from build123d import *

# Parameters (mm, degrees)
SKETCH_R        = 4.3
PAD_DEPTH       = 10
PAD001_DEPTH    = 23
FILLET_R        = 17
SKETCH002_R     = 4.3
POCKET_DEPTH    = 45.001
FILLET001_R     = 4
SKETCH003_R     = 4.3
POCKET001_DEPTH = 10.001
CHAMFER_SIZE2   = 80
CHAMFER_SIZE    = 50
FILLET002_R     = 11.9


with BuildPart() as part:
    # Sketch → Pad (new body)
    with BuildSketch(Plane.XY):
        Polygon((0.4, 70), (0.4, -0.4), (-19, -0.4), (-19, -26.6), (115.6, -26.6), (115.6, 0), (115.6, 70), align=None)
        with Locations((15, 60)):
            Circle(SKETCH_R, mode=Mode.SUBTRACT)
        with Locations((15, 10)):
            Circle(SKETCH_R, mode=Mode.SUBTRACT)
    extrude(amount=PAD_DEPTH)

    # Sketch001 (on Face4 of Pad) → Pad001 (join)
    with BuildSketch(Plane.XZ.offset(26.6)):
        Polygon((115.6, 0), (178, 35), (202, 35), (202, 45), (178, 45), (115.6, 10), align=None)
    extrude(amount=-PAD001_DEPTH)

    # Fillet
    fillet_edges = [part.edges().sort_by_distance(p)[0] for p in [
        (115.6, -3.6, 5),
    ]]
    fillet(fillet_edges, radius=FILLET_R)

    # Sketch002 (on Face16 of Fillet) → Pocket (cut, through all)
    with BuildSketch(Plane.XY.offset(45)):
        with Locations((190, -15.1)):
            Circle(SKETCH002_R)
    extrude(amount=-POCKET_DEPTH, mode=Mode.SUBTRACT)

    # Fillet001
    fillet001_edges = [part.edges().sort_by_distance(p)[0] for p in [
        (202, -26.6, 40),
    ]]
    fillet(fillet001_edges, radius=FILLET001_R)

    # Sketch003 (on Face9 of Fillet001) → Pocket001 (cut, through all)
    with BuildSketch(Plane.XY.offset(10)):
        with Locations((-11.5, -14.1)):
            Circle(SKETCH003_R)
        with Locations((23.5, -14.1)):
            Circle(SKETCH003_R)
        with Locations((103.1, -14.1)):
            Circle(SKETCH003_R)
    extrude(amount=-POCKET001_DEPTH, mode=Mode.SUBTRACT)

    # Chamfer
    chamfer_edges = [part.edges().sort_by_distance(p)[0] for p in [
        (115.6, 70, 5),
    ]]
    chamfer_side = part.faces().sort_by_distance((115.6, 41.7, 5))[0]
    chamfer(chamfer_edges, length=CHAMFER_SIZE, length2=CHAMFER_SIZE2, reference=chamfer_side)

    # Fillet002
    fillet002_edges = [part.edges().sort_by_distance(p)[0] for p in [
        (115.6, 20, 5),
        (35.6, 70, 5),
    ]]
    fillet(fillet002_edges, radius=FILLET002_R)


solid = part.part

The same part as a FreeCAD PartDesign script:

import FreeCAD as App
import Part
import Sketcher

V = App.Vector
Q = App.Units.Quantity


def edges_at(feature, points):
    """Names of the edges that pass closest to the given points."""
    edges = feature.Shape.Edges
    near = lambda p: min(range(len(edges)), key=lambda i: edges[i].distToShape(Part.Vertex(*p))[0])
    return sorted({f"Edge{near(p) + 1}" for p in points})

doc = App.newDocument("Part")
params = doc.addObject("Spreadsheet::Sheet", "Params")
for row, (alias, value) in enumerate([
    ("sketch1_diameter", "8.6 mm"),
    ("sketch1_width", "19.4 mm"),
    ("sketch1_width2", "134.6 mm"),
    ("sketch1_height", "70.4 mm"),
    ("sketch1_height2", "26.2 mm"),
    ("pad1_length", "10 mm"),
    ("sketch2_width", "24 mm"),
    ("sketch2_height", "10 mm"),
    ("pad2_length", "23 mm"),
    ("fillet_radius", "17 mm"),
    ("sketch3_diameter", "8.6 mm"),
    ("fillet2_radius", "4 mm"),
    ("sketch4_diameter", "8.6 mm"),
    ("chamfer_size", "50 mm"),
    ("chamfer_size2", "80 mm"),
    ("fillet3_radius", "11.9 mm"),
], start=1):
    params.set(f"A{row}", alias)
    params.set(f"B{row}", "=" + value)
    params.setAlias(f"B{row}", alias)

body = doc.addObject("PartDesign::Body", "Body")

sketch1 = body.newObject("Sketcher::SketchObject", "Sketch")
sketch1.AttachmentSupport = (doc.getObject("XY_Plane"), [""])
sketch1.MapMode = "FlatFace"
sketch1.addGeometry([
    Part.LineSegment(V(0.4, 70, 0), V(0.4, -0.4, 0)),
    Part.LineSegment(V(0.4, -0.4, 0), V(-19, -0.4, 0)),
    Part.LineSegment(V(-19, -0.4, 0), V(-19, -26.6, 0)),
    Part.LineSegment(V(-19, -26.6, 0), V(115.6, -26.6, 0)),
    Part.LineSegment(V(115.6, -26.6, 0), V(115.6, 70, 0)),
    Part.LineSegment(V(115.6, 70, 0), V(0.4, 70, 0)),
    Part.Circle(V(15, 10, 0), V(0, 0, 1), 4.3),
    Part.Circle(V(15, 60, 0), V(0, 0, 1), 4.3),
], False)
sketch1.addConstraint([
    Sketcher.Constraint("Coincident", 0, 2, 1, 1),
    Sketcher.Constraint("Coincident", 1, 2, 2, 1),
    Sketcher.Constraint("Coincident", 2, 2, 3, 1),
    Sketcher.Constraint("Coincident", 3, 2, 4, 1),
    Sketcher.Constraint("Coincident", 4, 2, 5, 1),
    Sketcher.Constraint("Coincident", 5, 2, 0, 1),
    Sketcher.Constraint("Vertical", 0),
    Sketcher.Constraint("Horizontal", 1),
    Sketcher.Constraint("Vertical", 2),
    Sketcher.Constraint("Horizontal", 3),
    Sketcher.Constraint("Vertical", 4),
    Sketcher.Constraint("Horizontal", 5),
    Sketcher.Constraint("Equal", 6, 7),
    Sketcher.Constraint("Vertical", 6, 3, 7, 3),
    Sketcher.Constraint("Diameter", 6, Q("8.6 mm")),
    Sketcher.Constraint("DistanceX", 1, 2, 1, 1, Q("19.4 mm")),
    Sketcher.Constraint("DistanceX", 3, 1, 3, 2, Q("134.6 mm")),
    Sketcher.Constraint("DistanceY", 0, 2, 0, 1, Q("70.4 mm")),
    Sketcher.Constraint("DistanceY", 2, 2, 2, 1, Q("26.2 mm")),
    Sketcher.Constraint("DistanceX", -1, 1, 6, 3, Q("15 mm")),
    Sketcher.Constraint("DistanceY", -1, 1, 6, 3, Q("10 mm")),
    Sketcher.Constraint("DistanceY", -1, 1, 7, 3, Q("60 mm")),
    Sketcher.Constraint("DistanceX", 1, 2, -1, 1, Q("19 mm")),
    Sketcher.Constraint("DistanceY", -1, 1, 4, 2, Q("70 mm")),
])
sketch1.setExpression("Constraints[14]", "Params.sketch1_diameter")
sketch1.setExpression("Constraints[15]", "Params.sketch1_width")
sketch1.setExpression("Constraints[16]", "Params.sketch1_width2")
sketch1.setExpression("Constraints[17]", "Params.sketch1_height")
sketch1.setExpression("Constraints[18]", "Params.sketch1_height2")
pad1 = body.newObject("PartDesign::Pad", "Pad")
pad1.Profile = sketch1
pad1.setExpression("Length", "Params.pad1_length")

sketch2 = body.newObject("Sketcher::SketchObject", "Sketch001")
sketch2.AttachmentSupport = (doc.getObject("XZ_Plane"), [""])
sketch2.MapMode = "FlatFace"
sketch2.AttachmentOffset = App.Placement(V(0, 0, 26.6), App.Rotation())
sketch2.addGeometry([
    Part.LineSegment(V(116, 0, 0), V(178, 35, 0)),
    Part.LineSegment(V(178, 35, 0), V(202, 35, 0)),
    Part.LineSegment(V(202, 35, 0), V(202, 45, 0)),
    Part.LineSegment(V(202, 45, 0), V(178, 45, 0)),
    Part.LineSegment(V(178, 45, 0), V(116, 10, 0)),
    Part.LineSegment(V(116, 10, 0), V(116, 0, 0)),
], False)
sketch2.addConstraint([
    Sketcher.Constraint("Coincident", 0, 2, 1, 1),
    Sketcher.Constraint("Coincident", 1, 2, 2, 1),
    Sketcher.Constraint("Coincident", 2, 2, 3, 1),
    Sketcher.Constraint("Coincident", 3, 2, 4, 1),
    Sketcher.Constraint("Coincident", 4, 2, 5, 1),
    Sketcher.Constraint("Coincident", 5, 2, 0, 1),
    Sketcher.Constraint("Horizontal", 1),
    Sketcher.Constraint("Vertical", 2),
    Sketcher.Constraint("Horizontal", 3),
    Sketcher.Constraint("Vertical", 5),
    Sketcher.Constraint("PointOnObject", 5, 2, -1),
    Sketcher.Constraint("Parallel", 0, 4),
    Sketcher.Constraint("Vertical", 0, 2, 3, 2),
    Sketcher.Constraint("DistanceX", 1, 1, 1, 2, Q("24 mm")),
    Sketcher.Constraint("DistanceY", 2, 1, 2, 2, Q("10 mm")),
    Sketcher.Constraint("DistanceX", -1, 1, 0, 2, Q("178 mm")),
    Sketcher.Constraint("DistanceY", -1, 1, 0, 2, Q("35 mm")),
    Sketcher.Constraint("DistanceX", -1, 1, 4, 2, Q("115.6 mm")),
])
sketch2.setExpression("Constraints[13]", "Params.sketch2_width")
sketch2.setExpression("Constraints[14]", "Params.sketch2_height")
pad2 = body.newObject("PartDesign::Pad", "Pad001")
pad2.Profile = sketch2
pad2.setExpression("Length", "Params.pad2_length")
pad2.Reversed = True
doc.recompute()

fillet = body.newObject("PartDesign::Fillet", "Fillet")
fillet.Base = (pad2, edges_at(pad2, [(115.6, -3.6, 5)]))
fillet.setExpression("Radius", "Params.fillet_radius")

sketch3 = body.newObject("Sketcher::SketchObject", "Sketch002")
sketch3.AttachmentSupport = (doc.getObject("XY_Plane"), [""])
sketch3.MapMode = "FlatFace"
sketch3.AttachmentOffset = App.Placement(V(0, 0, 45), App.Rotation())
sketch3.addGeometry(Part.Circle(V(190, -15.1, 0), V(0, 0, 1), 4.3), False)
sketch3.addConstraint([
    Sketcher.Constraint("Diameter", 0, Q("8.6 mm")),
    Sketcher.Constraint("DistanceX", -1, 1, 0, 3, Q("190 mm")),
    Sketcher.Constraint("DistanceY", 0, 3, -1, 1, Q("15.1 mm")),
])
sketch3.setExpression("Constraints[0]", "Params.sketch3_diameter")
pocket1 = body.newObject("PartDesign::Pocket", "Pocket")
pocket1.Profile = sketch3
pocket1.Type = "ThroughAll"
doc.recompute()

fillet2 = body.newObject("PartDesign::Fillet", "Fillet001")
fillet2.Base = (pocket1, edges_at(pocket1, [(202, -26.6, 40)]))
fillet2.setExpression("Radius", "Params.fillet2_radius")

sketch4 = body.newObject("Sketcher::SketchObject", "Sketch003")
sketch4.AttachmentSupport = (doc.getObject("XY_Plane"), [""])
sketch4.MapMode = "FlatFace"
sketch4.AttachmentOffset = App.Placement(V(0, 0, 10), App.Rotation())
sketch4.addGeometry([
    Part.Circle(V(-11.5, -14.1, 0), V(0, 0, 1), 4.3),
    Part.Circle(V(23.5, -14.1, 0), V(0, 0, 1), 4.3),
    Part.Circle(V(103.1, -14.1, 0), V(0, 0, 1), 4.3),
], False)
sketch4.addConstraint([
    Sketcher.Constraint("Equal", 0, 1),
    Sketcher.Constraint("Equal", 1, 2),
    Sketcher.Constraint("Horizontal", 0, 3, 1, 3),
    Sketcher.Constraint("Horizontal", 1, 3, 2, 3),
    Sketcher.Constraint("Diameter", 0, Q("8.6 mm")),
    Sketcher.Constraint("DistanceX", 0, 3, 1, 3, Q("35 mm")),
    Sketcher.Constraint("DistanceX", 0, 3, -1, 1, Q("11.5 mm")),
    Sketcher.Constraint("DistanceY", 0, 3, -1, 1, Q("14.1 mm")),
    Sketcher.Constraint("DistanceX", -1, 1, 2, 3, Q("103.1 mm")),
])
sketch4.setExpression("Constraints[4]", "Params.sketch4_diameter")
pocket2 = body.newObject("PartDesign::Pocket", "Pocket001")
pocket2.Profile = sketch4
pocket2.Type = "ThroughAll"
doc.recompute()

chamfer = body.newObject("PartDesign::Chamfer", "Chamfer")
chamfer.Base = (pocket2, edges_at(pocket2, [(115.6, 70, 5)]))
chamfer.ChamferType = "Two distances"
chamfer.setExpression("Size", "Params.chamfer_size")
chamfer.setExpression("Size2", "Params.chamfer_size2")
doc.recompute()

fillet3 = body.newObject("PartDesign::Fillet", "Fillet002")
fillet3.Base = (chamfer, edges_at(chamfer, [(115.6, 20, 5), (35.6, 70, 5)]))
fillet3.setExpression("Radius", "Params.fillet3_radius")

doc.recompute()
